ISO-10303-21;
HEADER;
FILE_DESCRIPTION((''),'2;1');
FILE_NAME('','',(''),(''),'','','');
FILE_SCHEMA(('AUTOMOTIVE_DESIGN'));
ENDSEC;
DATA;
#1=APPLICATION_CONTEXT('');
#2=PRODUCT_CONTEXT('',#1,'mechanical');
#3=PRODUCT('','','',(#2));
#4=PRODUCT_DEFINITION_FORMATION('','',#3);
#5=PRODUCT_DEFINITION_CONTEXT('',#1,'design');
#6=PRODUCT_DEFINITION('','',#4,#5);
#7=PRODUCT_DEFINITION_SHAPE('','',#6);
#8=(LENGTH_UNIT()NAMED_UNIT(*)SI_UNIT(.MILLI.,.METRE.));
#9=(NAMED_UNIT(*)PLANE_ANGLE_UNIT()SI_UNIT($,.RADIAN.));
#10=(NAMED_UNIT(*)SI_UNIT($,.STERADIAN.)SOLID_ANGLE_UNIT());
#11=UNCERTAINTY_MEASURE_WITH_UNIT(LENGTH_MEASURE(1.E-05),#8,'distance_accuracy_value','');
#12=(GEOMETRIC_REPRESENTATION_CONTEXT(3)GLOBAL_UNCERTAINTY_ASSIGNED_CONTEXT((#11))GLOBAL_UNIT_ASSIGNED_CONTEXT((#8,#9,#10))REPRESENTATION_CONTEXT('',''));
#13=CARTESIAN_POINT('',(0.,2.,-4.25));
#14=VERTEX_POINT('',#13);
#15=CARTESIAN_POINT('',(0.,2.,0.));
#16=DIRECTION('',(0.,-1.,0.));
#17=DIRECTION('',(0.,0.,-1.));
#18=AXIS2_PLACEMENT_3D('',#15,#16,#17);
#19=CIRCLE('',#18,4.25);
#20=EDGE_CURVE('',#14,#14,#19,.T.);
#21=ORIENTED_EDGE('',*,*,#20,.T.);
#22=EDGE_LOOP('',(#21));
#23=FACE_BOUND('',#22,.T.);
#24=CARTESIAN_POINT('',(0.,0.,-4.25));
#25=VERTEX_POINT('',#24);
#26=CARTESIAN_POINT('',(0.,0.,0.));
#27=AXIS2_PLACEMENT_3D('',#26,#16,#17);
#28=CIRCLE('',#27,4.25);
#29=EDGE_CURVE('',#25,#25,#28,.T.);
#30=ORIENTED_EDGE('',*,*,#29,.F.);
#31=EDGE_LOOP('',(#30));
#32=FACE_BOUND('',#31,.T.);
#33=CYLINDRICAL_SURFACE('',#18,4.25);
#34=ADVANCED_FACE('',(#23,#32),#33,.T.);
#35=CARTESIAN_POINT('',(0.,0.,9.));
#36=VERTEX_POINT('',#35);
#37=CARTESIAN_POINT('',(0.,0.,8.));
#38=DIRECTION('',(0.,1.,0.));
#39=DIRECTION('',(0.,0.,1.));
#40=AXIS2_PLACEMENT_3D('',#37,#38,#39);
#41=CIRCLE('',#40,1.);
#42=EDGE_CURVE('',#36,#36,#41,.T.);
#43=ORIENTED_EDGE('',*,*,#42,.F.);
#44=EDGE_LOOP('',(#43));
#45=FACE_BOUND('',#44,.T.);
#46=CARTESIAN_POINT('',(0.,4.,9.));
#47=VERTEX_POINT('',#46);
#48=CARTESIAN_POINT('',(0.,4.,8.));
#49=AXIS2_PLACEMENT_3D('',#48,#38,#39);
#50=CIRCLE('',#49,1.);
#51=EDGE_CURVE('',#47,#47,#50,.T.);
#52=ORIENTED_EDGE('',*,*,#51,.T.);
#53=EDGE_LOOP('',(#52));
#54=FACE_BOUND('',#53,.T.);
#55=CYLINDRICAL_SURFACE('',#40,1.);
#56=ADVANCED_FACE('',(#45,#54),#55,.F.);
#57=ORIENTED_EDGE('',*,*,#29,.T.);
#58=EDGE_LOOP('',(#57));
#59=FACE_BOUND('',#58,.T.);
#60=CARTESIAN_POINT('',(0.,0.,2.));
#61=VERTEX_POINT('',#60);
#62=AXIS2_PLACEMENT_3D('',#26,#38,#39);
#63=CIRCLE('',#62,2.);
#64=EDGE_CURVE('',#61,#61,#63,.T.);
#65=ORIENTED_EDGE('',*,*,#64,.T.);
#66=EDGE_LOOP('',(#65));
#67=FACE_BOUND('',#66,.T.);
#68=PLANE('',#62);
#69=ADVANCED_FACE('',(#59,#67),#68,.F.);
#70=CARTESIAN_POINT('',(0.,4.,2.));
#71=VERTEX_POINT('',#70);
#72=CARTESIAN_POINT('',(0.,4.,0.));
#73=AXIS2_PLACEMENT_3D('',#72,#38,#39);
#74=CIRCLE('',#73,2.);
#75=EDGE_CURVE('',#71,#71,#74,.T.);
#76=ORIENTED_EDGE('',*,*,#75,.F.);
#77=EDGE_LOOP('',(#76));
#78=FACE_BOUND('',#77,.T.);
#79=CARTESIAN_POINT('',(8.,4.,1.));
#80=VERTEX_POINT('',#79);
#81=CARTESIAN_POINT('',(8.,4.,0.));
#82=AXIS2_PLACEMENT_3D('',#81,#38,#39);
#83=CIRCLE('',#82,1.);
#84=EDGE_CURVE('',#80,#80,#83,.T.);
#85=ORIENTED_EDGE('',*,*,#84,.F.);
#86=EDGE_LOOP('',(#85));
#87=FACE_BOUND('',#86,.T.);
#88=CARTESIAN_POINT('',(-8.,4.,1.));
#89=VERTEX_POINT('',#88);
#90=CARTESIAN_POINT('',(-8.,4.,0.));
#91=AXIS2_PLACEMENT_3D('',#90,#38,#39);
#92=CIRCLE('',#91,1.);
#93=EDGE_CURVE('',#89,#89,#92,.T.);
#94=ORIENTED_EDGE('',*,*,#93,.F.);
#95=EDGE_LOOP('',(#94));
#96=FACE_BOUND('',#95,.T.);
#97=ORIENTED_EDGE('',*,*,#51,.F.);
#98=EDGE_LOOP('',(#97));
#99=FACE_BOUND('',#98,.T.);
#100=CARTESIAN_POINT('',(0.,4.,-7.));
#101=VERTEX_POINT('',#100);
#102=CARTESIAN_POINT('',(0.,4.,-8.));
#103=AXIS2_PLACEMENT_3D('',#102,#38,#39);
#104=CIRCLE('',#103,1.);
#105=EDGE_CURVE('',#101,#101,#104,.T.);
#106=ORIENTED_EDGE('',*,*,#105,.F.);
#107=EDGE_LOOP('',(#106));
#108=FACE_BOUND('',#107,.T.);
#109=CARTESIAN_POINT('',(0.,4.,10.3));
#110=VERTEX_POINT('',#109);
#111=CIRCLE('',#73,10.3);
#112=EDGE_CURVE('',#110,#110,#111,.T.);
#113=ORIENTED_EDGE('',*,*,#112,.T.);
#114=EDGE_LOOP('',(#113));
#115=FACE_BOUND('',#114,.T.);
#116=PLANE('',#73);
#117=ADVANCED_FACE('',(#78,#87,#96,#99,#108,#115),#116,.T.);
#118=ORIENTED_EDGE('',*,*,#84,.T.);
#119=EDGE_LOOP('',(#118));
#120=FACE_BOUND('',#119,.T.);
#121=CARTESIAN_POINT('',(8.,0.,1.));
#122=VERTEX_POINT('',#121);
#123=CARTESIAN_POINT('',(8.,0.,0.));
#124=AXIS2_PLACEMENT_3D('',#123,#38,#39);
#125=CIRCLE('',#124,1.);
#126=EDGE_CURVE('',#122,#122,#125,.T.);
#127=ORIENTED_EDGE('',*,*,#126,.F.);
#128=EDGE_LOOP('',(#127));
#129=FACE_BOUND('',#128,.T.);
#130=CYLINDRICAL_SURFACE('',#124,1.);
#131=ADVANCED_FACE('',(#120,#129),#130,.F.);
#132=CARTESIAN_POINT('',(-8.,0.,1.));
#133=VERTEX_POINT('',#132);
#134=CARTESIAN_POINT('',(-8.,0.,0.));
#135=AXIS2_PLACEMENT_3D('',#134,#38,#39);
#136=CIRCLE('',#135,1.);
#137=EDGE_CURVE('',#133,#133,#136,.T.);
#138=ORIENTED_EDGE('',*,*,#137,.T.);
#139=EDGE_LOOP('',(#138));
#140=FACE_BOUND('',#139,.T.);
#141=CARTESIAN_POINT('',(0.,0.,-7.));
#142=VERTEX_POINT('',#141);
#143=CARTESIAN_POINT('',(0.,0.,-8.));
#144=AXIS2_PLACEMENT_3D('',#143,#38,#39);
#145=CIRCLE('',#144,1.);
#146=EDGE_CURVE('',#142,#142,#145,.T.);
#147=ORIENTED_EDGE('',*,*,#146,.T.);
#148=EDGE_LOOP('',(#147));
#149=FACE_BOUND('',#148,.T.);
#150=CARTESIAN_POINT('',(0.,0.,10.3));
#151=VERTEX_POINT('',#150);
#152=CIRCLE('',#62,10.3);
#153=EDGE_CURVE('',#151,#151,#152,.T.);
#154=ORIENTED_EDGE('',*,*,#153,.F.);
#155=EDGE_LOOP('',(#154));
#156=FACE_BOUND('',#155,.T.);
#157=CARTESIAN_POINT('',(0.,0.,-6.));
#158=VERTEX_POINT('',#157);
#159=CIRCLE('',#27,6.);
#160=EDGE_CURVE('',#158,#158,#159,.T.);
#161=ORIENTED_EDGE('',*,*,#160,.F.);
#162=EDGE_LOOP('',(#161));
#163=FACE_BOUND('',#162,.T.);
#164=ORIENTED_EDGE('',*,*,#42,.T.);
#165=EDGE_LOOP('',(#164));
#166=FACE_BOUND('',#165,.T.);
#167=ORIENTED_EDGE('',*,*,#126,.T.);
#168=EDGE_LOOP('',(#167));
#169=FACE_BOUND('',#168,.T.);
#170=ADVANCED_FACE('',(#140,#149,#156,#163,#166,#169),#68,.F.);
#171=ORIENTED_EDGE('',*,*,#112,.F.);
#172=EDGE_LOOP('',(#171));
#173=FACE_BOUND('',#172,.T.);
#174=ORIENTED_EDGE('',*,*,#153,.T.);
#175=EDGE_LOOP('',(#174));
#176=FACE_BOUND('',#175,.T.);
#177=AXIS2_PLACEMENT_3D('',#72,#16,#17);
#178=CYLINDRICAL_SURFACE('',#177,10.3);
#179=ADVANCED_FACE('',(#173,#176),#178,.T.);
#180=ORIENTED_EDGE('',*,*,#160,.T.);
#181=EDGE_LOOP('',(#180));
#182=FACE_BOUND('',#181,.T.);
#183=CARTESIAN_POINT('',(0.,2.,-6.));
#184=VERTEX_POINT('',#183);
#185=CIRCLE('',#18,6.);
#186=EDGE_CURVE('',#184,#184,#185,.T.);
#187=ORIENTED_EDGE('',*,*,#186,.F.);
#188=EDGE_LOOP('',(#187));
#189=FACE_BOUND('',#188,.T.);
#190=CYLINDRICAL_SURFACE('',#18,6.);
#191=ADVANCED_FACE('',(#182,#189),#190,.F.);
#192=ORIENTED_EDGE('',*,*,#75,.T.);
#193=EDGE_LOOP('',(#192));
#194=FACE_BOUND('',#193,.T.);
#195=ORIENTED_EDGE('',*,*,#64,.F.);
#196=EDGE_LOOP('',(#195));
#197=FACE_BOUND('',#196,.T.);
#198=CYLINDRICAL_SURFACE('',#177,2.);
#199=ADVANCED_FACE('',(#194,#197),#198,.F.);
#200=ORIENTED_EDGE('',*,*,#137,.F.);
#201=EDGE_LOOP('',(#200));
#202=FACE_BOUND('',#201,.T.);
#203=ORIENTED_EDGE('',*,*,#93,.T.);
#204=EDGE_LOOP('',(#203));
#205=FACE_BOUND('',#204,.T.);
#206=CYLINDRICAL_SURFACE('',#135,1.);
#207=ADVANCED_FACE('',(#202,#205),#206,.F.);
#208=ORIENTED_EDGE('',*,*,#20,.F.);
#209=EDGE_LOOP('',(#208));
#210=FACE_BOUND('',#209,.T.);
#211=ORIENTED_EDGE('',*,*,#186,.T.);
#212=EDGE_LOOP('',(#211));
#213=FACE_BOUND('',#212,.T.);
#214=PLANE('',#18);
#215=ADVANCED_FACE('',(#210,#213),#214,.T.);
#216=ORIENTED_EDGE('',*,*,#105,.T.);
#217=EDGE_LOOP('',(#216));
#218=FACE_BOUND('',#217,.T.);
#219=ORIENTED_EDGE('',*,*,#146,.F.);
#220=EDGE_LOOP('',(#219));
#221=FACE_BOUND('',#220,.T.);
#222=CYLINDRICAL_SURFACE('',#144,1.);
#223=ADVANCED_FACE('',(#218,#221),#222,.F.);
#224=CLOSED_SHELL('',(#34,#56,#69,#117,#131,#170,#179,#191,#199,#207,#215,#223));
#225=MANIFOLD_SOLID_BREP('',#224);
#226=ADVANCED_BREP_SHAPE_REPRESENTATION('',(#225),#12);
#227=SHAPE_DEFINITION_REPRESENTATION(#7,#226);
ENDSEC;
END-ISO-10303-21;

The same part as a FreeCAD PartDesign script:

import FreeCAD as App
import Part
import Sketcher

doc = App.newDocument("Part")
params = doc.addObject("Spreadsheet::Sheet", "Params")
for row, (alias, value) in enumerate([
    ("sketch1_diameter", "4 mm"),
    ("sketch1_diameter2", "20.6 mm"),
    ("pad1_length", "4 mm"),
    ("sketch2_diameter", "2 mm"),
    ("pocket1_length", "4 mm"),
    ("sketch3_diameter", "12 mm"),
    ("sketch3_diameter2", "8.5 mm"),
    ("pocket2_length", "2 mm"),
], start=1):
    params.set(f"A{row}", alias)
    params.set(f"B{row}", "=" + value)
    params.setAlias(f"B{row}", alias)

body = doc.addObject("PartDesign::Body", "Body")

sketch1 = doc.addObject("Sketcher::SketchObject", "Sketch")
body.addObject(sketch1)
sketch1.AttachmentSupport = (doc.XZ_Plane, [""])
sketch1.MapMode = "FlatFace"
sketch1.addGeometry(Part.Circle(App.Vector(0, 0, 0), App.Vector(0, 0, 1), 10.3), False)
sketch1.addGeometry(Part.Circle(App.Vector(0, 0, 0), App.Vector(0, 0, 1), 2), False)
sketch1.addConstraint(Sketcher.Constraint("Coincident", 0, 3, -1, 1))
sketch1.addConstraint(Sketcher.Constraint("Coincident", 1, 3, -1, 1))
sketch1.addConstraint(Sketcher.Constraint("Diameter", 1, 4.0))
sketch1.addConstraint(Sketcher.Constraint("Diameter", 0, 20.6))
sketch1.setExpression("Constraints[2]", "Params.sketch1_diameter")
sketch1.setExpression("Constraints[3]", "Params.sketch1_diameter2")
pad1 = doc.addObject("PartDesign::Pad", "Pad")
body.addObject(pad1)
pad1.Profile = sketch1
pad1.setExpression("Length", "Params.pad1_length")
pad1.Reversed = True

sketch2 = doc.addObject("Sketcher::SketchObject", "Sketch001")
body.addObject(sketch2)
sketch2.AttachmentSupport = (doc.XZ_Plane, [""])
sketch2.MapMode = "FlatFace"
sketch2.AttachmentOffset = App.Placement(App.Vector(0, 0, -4), App.Rotation())
sketch2.addGeometry(Part.Circle(App.Vector(0, -8, 0), App.Vector(0, 0, 1), 1), False)
sketch2.addGeometry(Part.Circle(App.Vector(-8, 0, 0), App.Vector(0, 0, 1), 1), False)
sketch2.addGeometry(Part.Circle(App.Vector(8, 0, 0), App.Vector(0, 0, 1), 1), False)
sketch2.addGeometry(Part.Circle(App.Vector(0, 8, 0), App.Vector(0, 0, 1), 1), False)
sketch2.addConstraint(Sketcher.Constraint("Equal", 0, 1))
sketch2.addConstraint(Sketcher.Constraint("Equal", 1, 2))
sketch2.addConstraint(Sketcher.Constraint("Equal", 2, 3))
sketch2.addConstraint(Sketcher.Constraint("Symmetric", 1, 3, 2, 3, -1, 1))
sketch2.addConstraint(Sketcher.Constraint("Symmetric", 0, 3, 3, 3, -1, 1))
sketch2.addConstraint(Sketcher.Constraint("PointOnObject", 0, 3, -2))
sketch2.addConstraint(Sketcher.Constraint("PointOnObject", 1, 3, -1))
sketch2.addConstraint(Sketcher.Constraint("Diameter", 0, 2.0))
sketch2.addConstraint(Sketcher.Constraint("DistanceY", 0, 3, -1, 1, 8.0))
sketch2.addConstraint(Sketcher.Constraint("DistanceX", 1, 3, -1, 1, 8.0))
sketch2.setExpression("Constraints[7]", "Params.sketch2_diameter")
pocket1 = doc.addObject("PartDesign::Pocket", "Pocket")
body.addObject(pocket1)
pocket1.Profile = sketch2
pocket1.setExpression("Length", "Params.pocket1_length")
pocket1.Reversed = True

sketch3 = doc.addObject("Sketcher::SketchObject", "Sketch002")
body.addObject(sketch3)
sketch3.AttachmentSupport = (doc.XZ_Plane, [""])
sketch3.MapMode = "FlatFace"
sketch3.addGeometry(Part.Circle(App.Vector(0, 0, 0), App.Vector(0, 0, 1), 6), False)
sketch3.addGeometry(Part.Circle(App.Vector(0, 0, 0), App.Vector(0, 0, 1), 4.25), False)
sketch3.addConstraint(Sketcher.Constraint("Coincident", 0, 3, -1, 1))
sketch3.addConstraint(Sketcher.Constraint("Coincident", 1, 3, -1, 1))
sketch3.addConstraint(Sketcher.Constraint("Diameter", 0, 12.0))
sketch3.addConstraint(Sketcher.Constraint("Diameter", 1, 8.5))
sketch3.setExpression("Constraints[2]", "Params.sketch3_diameter")
sketch3.setExpression("Constraints[3]", "Params.sketch3_diameter2")
pocket2 = doc.addObject("PartDesign::Pocket", "Pocket001")
body.addObject(pocket2)
pocket2.Profile = sketch3
pocket2.setExpression("Length", "Params.pocket2_length")

doc.recompute()
